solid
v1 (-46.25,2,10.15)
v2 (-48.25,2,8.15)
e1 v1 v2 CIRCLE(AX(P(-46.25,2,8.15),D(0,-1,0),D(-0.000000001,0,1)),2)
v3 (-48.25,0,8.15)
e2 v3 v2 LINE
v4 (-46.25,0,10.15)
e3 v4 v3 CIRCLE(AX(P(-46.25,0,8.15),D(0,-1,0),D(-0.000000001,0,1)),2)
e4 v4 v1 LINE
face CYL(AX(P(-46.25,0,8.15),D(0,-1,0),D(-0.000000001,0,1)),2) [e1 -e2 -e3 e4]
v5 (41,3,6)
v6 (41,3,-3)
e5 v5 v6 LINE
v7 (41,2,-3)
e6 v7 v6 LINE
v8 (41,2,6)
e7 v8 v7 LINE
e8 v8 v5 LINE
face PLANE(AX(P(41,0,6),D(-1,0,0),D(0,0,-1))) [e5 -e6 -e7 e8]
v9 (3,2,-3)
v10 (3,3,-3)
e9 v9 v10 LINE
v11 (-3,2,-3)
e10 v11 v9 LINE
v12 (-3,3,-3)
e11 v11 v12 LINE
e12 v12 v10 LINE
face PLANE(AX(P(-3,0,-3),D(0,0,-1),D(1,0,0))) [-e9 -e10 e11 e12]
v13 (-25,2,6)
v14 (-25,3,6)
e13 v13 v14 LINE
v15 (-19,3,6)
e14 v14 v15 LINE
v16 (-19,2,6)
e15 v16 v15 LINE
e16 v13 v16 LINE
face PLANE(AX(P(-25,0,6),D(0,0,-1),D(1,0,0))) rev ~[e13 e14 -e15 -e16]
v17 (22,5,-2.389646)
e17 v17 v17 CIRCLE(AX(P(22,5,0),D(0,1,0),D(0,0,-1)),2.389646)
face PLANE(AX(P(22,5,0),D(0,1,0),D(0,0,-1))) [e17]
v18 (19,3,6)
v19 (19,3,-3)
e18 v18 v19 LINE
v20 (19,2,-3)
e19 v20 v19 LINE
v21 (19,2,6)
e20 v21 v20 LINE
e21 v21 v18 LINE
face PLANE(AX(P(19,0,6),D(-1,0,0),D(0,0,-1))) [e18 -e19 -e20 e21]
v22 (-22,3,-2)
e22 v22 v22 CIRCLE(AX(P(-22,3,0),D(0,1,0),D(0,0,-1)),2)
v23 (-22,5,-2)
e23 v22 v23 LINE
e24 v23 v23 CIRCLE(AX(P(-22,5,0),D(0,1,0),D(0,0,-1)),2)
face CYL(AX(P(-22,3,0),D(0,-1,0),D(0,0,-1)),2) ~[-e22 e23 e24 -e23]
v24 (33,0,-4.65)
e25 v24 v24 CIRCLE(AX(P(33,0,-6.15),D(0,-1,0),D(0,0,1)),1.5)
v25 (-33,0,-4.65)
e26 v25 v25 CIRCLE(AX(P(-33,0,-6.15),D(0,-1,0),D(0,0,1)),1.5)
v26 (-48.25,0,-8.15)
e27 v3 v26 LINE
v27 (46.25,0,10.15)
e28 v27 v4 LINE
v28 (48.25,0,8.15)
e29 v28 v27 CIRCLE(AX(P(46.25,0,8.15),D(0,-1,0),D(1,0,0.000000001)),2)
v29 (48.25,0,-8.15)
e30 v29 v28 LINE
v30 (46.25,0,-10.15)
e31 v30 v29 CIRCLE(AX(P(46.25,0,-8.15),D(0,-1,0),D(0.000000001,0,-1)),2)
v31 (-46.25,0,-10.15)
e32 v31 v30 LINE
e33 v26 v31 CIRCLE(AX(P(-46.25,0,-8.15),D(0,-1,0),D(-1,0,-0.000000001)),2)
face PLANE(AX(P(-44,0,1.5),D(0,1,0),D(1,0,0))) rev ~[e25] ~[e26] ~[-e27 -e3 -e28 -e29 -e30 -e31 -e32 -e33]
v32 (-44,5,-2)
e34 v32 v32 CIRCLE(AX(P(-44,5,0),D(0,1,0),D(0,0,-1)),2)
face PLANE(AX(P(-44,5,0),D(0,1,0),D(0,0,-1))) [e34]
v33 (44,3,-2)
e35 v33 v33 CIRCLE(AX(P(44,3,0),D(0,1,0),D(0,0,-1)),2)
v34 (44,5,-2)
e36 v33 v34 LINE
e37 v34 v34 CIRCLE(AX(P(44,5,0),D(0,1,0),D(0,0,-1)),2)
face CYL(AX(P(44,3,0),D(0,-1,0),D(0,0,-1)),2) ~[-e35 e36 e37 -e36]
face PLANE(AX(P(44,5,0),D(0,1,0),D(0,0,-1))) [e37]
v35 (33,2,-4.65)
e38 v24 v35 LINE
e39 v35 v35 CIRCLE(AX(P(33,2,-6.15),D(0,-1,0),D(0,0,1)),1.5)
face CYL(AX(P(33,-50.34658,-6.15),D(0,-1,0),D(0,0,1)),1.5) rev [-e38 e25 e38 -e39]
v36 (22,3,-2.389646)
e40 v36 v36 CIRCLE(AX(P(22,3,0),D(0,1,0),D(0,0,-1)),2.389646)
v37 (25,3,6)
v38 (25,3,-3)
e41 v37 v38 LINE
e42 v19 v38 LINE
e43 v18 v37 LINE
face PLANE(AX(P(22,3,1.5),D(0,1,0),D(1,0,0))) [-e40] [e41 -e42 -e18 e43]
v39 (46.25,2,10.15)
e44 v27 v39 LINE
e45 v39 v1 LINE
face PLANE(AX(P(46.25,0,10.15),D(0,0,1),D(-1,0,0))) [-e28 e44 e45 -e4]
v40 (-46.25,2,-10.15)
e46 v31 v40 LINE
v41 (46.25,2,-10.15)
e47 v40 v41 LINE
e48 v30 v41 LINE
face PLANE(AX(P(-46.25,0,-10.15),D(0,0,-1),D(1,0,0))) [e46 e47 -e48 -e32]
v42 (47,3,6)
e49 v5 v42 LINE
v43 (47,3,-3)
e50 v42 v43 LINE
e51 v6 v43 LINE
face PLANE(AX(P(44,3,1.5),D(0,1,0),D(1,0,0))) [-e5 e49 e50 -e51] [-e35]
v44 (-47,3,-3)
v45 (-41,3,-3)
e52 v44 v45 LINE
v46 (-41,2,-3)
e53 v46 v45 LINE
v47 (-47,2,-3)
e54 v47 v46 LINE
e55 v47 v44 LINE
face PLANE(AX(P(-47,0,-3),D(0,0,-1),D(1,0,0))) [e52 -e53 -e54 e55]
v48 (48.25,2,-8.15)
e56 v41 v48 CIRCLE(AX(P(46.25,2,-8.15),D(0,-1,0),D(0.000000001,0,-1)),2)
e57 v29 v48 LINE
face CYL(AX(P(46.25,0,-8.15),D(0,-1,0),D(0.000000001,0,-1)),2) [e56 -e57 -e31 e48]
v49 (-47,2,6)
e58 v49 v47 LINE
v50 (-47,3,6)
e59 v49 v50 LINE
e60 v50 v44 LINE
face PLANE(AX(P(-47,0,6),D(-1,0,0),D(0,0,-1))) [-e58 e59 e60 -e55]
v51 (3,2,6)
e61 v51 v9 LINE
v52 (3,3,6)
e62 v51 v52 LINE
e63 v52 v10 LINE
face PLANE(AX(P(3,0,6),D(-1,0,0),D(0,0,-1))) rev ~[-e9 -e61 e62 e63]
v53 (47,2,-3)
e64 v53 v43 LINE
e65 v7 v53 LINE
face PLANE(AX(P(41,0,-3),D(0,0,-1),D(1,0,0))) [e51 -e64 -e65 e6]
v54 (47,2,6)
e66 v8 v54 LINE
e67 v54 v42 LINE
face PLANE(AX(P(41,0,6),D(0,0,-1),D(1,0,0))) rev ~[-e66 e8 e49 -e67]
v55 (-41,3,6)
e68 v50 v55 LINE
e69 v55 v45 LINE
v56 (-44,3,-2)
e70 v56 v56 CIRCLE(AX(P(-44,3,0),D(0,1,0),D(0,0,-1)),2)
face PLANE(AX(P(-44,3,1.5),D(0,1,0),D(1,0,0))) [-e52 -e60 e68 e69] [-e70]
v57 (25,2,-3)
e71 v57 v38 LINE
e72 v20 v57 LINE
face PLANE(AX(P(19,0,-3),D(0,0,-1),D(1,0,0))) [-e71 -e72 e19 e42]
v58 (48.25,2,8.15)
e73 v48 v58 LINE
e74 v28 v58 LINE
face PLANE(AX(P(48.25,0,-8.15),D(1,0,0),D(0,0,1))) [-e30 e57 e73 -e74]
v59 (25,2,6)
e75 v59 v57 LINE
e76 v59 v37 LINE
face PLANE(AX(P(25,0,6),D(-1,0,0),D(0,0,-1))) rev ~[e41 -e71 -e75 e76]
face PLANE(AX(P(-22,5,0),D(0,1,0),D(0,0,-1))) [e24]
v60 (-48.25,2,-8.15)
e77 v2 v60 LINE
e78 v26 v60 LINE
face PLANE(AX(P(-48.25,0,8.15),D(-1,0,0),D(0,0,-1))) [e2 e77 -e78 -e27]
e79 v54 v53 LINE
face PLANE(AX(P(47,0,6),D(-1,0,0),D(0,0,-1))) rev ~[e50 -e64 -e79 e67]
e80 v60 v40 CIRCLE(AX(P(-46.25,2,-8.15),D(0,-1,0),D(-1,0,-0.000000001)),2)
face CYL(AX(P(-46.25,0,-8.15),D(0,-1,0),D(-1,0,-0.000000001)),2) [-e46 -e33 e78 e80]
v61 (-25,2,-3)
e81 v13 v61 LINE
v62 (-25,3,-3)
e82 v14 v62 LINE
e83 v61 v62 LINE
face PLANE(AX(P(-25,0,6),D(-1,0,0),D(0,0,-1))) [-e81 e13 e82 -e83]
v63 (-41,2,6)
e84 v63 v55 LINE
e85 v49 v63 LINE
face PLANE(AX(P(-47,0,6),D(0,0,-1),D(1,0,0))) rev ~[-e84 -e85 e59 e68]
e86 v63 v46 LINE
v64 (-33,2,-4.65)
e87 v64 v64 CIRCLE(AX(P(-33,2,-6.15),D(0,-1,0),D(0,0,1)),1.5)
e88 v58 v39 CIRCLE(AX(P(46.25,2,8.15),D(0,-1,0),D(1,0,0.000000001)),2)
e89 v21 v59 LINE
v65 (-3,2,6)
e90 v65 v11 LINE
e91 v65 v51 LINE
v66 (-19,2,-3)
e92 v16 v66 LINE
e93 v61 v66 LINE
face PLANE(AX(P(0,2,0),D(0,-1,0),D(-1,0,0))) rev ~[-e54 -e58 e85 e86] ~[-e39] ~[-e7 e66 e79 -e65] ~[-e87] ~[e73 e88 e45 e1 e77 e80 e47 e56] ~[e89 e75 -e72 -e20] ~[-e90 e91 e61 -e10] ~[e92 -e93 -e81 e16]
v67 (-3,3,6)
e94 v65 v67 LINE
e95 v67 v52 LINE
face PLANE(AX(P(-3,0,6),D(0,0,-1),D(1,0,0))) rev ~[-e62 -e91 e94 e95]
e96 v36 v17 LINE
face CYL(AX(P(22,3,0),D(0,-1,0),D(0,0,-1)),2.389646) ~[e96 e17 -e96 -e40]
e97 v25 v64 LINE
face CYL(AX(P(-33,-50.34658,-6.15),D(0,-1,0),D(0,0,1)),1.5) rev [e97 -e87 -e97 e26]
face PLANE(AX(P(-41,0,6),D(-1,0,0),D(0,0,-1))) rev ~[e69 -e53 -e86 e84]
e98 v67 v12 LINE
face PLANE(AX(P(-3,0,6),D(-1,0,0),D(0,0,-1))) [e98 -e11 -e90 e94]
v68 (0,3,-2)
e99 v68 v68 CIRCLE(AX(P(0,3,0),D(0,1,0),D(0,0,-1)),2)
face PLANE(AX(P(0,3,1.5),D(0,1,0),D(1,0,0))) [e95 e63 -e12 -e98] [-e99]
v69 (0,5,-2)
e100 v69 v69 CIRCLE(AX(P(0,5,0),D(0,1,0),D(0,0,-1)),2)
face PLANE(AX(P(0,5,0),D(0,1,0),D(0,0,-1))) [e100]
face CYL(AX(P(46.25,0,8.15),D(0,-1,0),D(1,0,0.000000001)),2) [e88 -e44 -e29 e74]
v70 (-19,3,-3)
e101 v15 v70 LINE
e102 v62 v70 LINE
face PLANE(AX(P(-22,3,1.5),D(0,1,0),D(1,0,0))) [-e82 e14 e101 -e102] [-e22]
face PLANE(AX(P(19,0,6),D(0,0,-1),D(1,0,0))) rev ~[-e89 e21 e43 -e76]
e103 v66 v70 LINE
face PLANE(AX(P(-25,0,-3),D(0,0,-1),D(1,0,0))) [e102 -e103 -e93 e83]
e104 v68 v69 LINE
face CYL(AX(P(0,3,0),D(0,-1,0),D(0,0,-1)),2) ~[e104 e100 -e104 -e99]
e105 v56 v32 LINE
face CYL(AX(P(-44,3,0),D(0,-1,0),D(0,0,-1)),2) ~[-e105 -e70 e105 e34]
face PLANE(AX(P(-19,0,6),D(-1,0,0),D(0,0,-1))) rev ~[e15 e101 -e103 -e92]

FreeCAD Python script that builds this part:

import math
import FreeCAD as App
import Part
import Sketcher


def add_polygon(sketch, points):
    """Adds a closed chain of lines whose ends are joined by coincident constraints."""
    first, n = sketch.GeometryCount, len(points)
    for a, b in zip(points, points[1:] + points[:1]):
        sketch.addGeometry(Part.LineSegment(App.Vector(*a, 0), App.Vector(*b, 0)), False)
    for i in range(n):
        sketch.addConstraint(Sketcher.Constraint("Coincident", first + i, 2, first + (i + 1) % n, 1))

doc = App.newDocument("Part")
body = doc.addObject("PartDesign::Body", "Body")

sketch1 = body.newObject("Sketcher::SketchObject", "Sketch")
sketch1.AttachmentSupport = (doc.getObject("XZ_Plane"), [""])
sketch1.MapMode = "FlatFace"
sketch1.addGeometry([
    Part.LineSegment(App.Vector(-46.25, 10.15, 0), App.Vector(46.25, 10.15, 0)),
    Part.ArcOfCircle(Part.Circle(App.Vector(46.25, 8.15, 0), App.Vector(0, 0, 1), 2), math.radians(0), math.radians(90)),
    Part.LineSegment(App.Vector(48.25, 8.15, 0), App.Vector(48.25, -8.15, 0)),
    Part.ArcOfCircle(Part.Circle(App.Vector(46.25, -8.15, 0), App.Vector(0, 0, 1), 2), math.radians(-90), math.radians(0)),
    Part.LineSegment(App.Vector(46.25, -10.15, 0), App.Vector(-46.25, -10.15, 0)),
    Part.ArcOfCircle(Part.Circle(App.Vector(-46.25, -8.15, 0), App.Vector(0, 0, 1), 2), math.radians(-180), math.radians(-90)),
    Part.LineSegment(App.Vector(-48.25, -8.15, 0), App.Vector(-48.25, 8.15, 0)),
    Part.ArcOfCircle(Part.Circle(App.Vector(-46.25, 8.15, 0), App.Vector(0, 0, 1), 2), math.radians(90), math.radians(180)),
], False)
sketch1.addConstraint([
    Sketcher.Constraint("Tangent", 0, 2, 1, 2),
    Sketcher.Constraint("Tangent", 1, 1, 2, 1),
    Sketcher.Constraint("Tangent", 2, 2, 3, 2),
    Sketcher.Constraint("Tangent", 3, 1, 4, 1),
    Sketcher.Constraint("Tangent", 4, 2, 5, 2),
    Sketcher.Constraint("Tangent", 5, 1, 6, 1),
    Sketcher.Constraint("Tangent", 6, 2, 7, 2),
    Sketcher.Constraint("Tangent", 7, 1, 0, 1),
    Sketcher.Constraint("Horizontal", 0),
    Sketcher.Constraint("Vertical", 2),
    Sketcher.Constraint("Horizontal", 4),
    Sketcher.Constraint("Vertical", 6),
    Sketcher.Constraint("Equal", 1, 3),
    Sketcher.Constraint("Equal", 3, 5),
    Sketcher.Constraint("Equal", 5, 7),
    Sketcher.Constraint("Symmetric", 1, 3, 5, 3, -1, 1),
    Sketcher.Constraint("Radius", 1, 2.0),
    Sketcher.Constraint("DistanceX", 0, 1, 0, 2, 92.5),
    Sketcher.Constraint("DistanceY", 2, 2, 2, 1, 16.3),
])
pad1 = body.newObject("PartDesign::Pad", "Pad")
pad1.Profile = sketch1
pad1.Length = 2
pad1.Reversed = True

sketch2 = body.newObject("Sketcher::SketchObject", "Sketch001")
sketch2.AttachmentSupport = (doc.getObject("XZ_Plane"), [""])
sketch2.MapMode = "FlatFace"
sketch2.addGeometry([
    Part.Circle(App.Vector(-33, -6.15, 0), App.Vector(0, 0, 1), 1.5),
    Part.Circle(App.Vector(33, -6.15, 0), App.Vector(0, 0, 1), 1.5),
], False)
sketch2.addConstraint([
    Sketcher.Constraint("Equal", 0, 1),
    Sketcher.Constraint("Symmetric", 0, 3, 1, 3, -2),
    Sketcher.Constraint("Diameter", 0, 3.0),
    Sketcher.Constraint("DistanceX", 0, 3, -1, 1, 33.0),
    Sketcher.Constraint("DistanceY", 0, 3, -1, 1, 6.15),
])
pocket1 = body.newObject("PartDesign::Pocket", "Pocket")
pocket1.Profile = sketch2
pocket1.Type = "ThroughAll"
pocket1.Midplane = True

sketch3 = body.newObject("Sketcher::SketchObject", "Sketch002")
sketch3.AttachmentSupport = (doc.getObject("XZ_Plane"), [""])
sketch3.MapMode = "FlatFace"
add_polygon(sketch3, [(-47, -3), (-47, 6), (-41, 6), (-41, -3)])
add_polygon(sketch3, [(-25, -3), (-25, 6), (-19, 6), (-19, -3)])
add_polygon(sketch3, [(-3, -3), (-3, 6), (3, 6), (3, -3)])
add_polygon(sketch3, [(19, -3), (19, 6), (25, 6), (25, -3)])
add_polygon(sketch3, [(41, -3), (41, 6), (47, 6), (47, -3)])
sketch3.addConstraint([
    Sketcher.Constraint("Vertical", 0),
    Sketcher.Constraint("Horizontal", 1),
    Sketcher.Constraint("Vertical", 2),
    Sketcher.Constraint("Horizontal", 3),
    Sketcher.Constraint("Vertical", 4),
    Sketcher.Constraint("Horizontal", 5),
    Sketcher.Constraint("Vertical", 6),
    Sketcher.Constraint("Horizontal", 7),
    Sketcher.Constraint("Vertical", 8),
    Sketcher.Constraint("Horizontal", 9),
    Sketcher.Constraint("Vertical", 10),
    Sketcher.Constraint("Horizontal", 11),
    Sketcher.Constraint("Vertical", 12),
    Sketcher.Constraint("Horizontal", 13),
    Sketcher.Constraint("Vertical", 14),
    Sketcher.Constraint("Horizontal", 15),
    Sketcher.Constraint("Vertical", 16),
    Sketcher.Constraint("Horizontal", 17),
    Sketcher.Constraint("Vertical", 18),
    Sketcher.Constraint("Horizontal", 19),
    Sketcher.Constraint("Symmetric", 5, 2, 12, 2, -2),
    Sketcher.Constraint("Symmetric", 7, 2, 14, 2, -2),
    Sketcher.Constraint("Symmetric", 1, 2, 16, 2, -2),
    Sketcher.Constraint("Symmetric", 3, 2, 18, 2, -2),
    Sketcher.Constraint("Horizontal", 1, 2, 4, 2),
    Sketcher.Constraint("Horizontal", 3, 2, 6, 2),
    Sketcher.Constraint("Horizontal", 5, 2, 8, 2),
    Sketcher.Constraint("Horizontal", 7, 2, 10, 2),
    Sketcher.Constraint("Equal", 3, 5),
    Sketcher.Constraint("Equal", 7, 9),
    Sketcher.Constraint("DistanceX", 1, 1, 1, 2, 6.0),
    Sketcher.Constraint("DistanceY", 0, 1, 0, 2, 9.0),
    Sketcher.Constraint("DistanceX", 0, 2, -1, 1, 47.0),
    Sketcher.Constraint("DistanceY", -1, 1, 0, 2, 6.0),
    Sketcher.Constraint("DistanceX", 4, 2, -1, 1, 25.0),
    Sketcher.Constraint("DistanceX", 8, 2, -1, 1, 3.0),
])
pad2 = body.newObject("PartDesign::Pad", "Pad001")
pad2.Profile = sketch3
pad2.Length = 3
pad2.Reversed = True

sketch4 = body.newObject("Sketcher::SketchObject", "Sketch003")
sketch4.AttachmentSupport = (doc.getObject("XZ_Plane"), [""])
sketch4.MapMode = "FlatFace"
sketch4.AttachmentOffset = App.Placement(App.Vector(0, 0, -3), App.Rotation())
sketch4.addGeometry([
    Part.Circle(App.Vector(-44, 0, 0), App.Vector(0, 0, 1), 2),
    Part.Circle(App.Vector(-22, 0, 0), App.Vector(0, 0, 1), 2),
    Part.Circle(App.Vector(0, 0, 0), App.Vector(0, 0, 1), 2),
    Part.Circle(App.Vector(22, 0, 0), App.Vector(0, 0, 1), 2.389646),
    Part.Circle(App.Vector(44, 0, 0), App.Vector(0, 0, 1), 2),
], False)
sketch4.addConstraint([
    Sketcher.Constraint("Coincident", 2, 3, -1, 1),
    Sketcher.Constraint("Equal", 0, 1),
    Sketcher.Constraint("Equal", 1, 2),
    Sketcher.Constraint("Equal", 2, 4),
    Sketcher.Constraint("Symmetric", 1, 3, 3, 3, -1, 1),
    Sketcher.Constraint("Symmetric", 0, 3, 4, 3, -1, 1),
    Sketcher.Constraint("PointOnObject", 0, 3, -1),
    Sketcher.Constraint("PointOnObject", 1, 3, -1),
    Sketcher.Constraint("Diameter", 0, 4.0),
    Sketcher.Constraint("DistanceX", 0, 3, -1, 1, 44.0),
    Sketcher.Constraint("DistanceX", 1, 3, -1, 1, 22.0),
    Sketcher.Constraint("Diameter", 3, 4.779292),
])
pad3 = body.newObject("PartDesign::Pad", "Pad002")
pad3.Profile = sketch4
pad3.Length = 2
pad3.Reversed = True

doc.recompute()
